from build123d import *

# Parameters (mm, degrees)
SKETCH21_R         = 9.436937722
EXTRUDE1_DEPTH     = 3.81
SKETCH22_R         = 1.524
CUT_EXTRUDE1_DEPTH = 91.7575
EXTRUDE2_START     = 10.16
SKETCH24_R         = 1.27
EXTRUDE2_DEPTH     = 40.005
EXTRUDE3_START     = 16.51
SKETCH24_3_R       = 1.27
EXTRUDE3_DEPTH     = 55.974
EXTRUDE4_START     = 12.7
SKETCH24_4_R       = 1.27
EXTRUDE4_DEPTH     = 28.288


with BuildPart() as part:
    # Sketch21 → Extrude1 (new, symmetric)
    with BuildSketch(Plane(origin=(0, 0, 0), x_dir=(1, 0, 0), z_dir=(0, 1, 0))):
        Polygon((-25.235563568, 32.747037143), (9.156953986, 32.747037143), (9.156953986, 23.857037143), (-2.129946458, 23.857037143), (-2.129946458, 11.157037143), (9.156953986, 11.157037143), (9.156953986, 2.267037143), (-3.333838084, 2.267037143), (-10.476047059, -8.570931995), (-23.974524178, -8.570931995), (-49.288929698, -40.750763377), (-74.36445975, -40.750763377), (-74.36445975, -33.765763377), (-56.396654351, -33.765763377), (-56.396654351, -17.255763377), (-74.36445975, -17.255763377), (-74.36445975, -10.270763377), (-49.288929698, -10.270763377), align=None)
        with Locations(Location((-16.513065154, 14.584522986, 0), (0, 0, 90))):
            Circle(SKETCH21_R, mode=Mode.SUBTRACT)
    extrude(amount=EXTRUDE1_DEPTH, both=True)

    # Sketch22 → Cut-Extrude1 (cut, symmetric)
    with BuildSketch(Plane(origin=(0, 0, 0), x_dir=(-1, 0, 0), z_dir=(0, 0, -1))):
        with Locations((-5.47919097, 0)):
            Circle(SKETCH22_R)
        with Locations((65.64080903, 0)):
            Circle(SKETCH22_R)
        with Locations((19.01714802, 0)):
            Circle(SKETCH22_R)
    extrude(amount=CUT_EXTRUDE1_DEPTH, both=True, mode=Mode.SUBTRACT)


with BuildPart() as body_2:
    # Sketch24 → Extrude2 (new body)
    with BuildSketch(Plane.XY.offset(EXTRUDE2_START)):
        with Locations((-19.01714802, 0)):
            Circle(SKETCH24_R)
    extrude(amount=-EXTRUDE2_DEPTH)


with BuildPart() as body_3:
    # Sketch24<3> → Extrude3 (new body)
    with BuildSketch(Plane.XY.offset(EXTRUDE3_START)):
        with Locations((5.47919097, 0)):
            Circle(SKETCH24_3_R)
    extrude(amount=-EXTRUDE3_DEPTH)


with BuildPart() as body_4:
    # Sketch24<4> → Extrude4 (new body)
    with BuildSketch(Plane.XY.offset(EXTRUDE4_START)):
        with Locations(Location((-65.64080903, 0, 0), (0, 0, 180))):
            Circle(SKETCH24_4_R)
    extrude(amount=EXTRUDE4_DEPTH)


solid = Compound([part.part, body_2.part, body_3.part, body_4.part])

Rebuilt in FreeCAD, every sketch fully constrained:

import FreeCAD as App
import Part
import Sketcher
Q = App.Units.Quantity

doc = App.newDocument("Part")
params = doc.addObject("Spreadsheet::Sheet", "Params")
for row, (alias, value) in enumerate([
    ("sketch1_height", "0.5 in"),
    ("sketch1_height2", "0.65 in"),
    ("sketch1_height3", "0.35 in"),
    ("pad1_length", "0.3 in"),
    ("sketch2_diameter", "0.12 in"),
    ("pocket1_length", "7.225 in"),
    ("sketch3_diameter", "0.1 in"),
    ("pad2_length", "1.575 in"),
    ("sketch4_diameter", "0.1 in"),
    ("pad3_length", "55.974 mm"),
    ("sketch5_diameter", "0.1 in"),
    ("pad4_length", "28.288 mm"),
], start=1):
    params.set(f"A{row}", alias)
    params.set(f"B{row}", "=" + value)
    params.setAlias(f"B{row}", alias)

body = doc.addObject("PartDesign::Body", "Body")

sketch1 = body.newObject("Sketcher::SketchObject", "Sketch")
sketch1.AttachmentSupport = (doc.getObject("XZ_Plane"), [""])
sketch1.MapMode = "FlatFace"
sketch1.addGeometry(Part.LineSegment(App.Vector(9, -33, 0), App.Vector(-25, -33, 0)), False)
sketch1.addGeometry(Part.LineSegment(App.Vector(-25, -33, 0), App.Vector(-49, 10, 0)), False)
sketch1.addGeometry(Part.LineSegment(App.Vector(-49, 10, 0), App.Vector(-74, 10, 0)), False)
sketch1.addGeometry(Part.LineSegment(App.Vector(-74, 10, 0), App.Vector(-74, 17, 0)), False)
sketch1.addGeometry(Part.LineSegment(App.Vector(-74, 17, 0), App.Vector(-56, 17, 0)), False)
sketch1.addGeometry(Part.LineSegment(App.Vector(-56, 17, 0), App.Vector(-56, 34, 0)), False)
sketch1.addGeometry(Part.LineSegment(App.Vector(-56, 34, 0), App.Vector(-74, 34, 0)), False)
sketch1.addGeometry(Part.LineSegment(App.Vector(-74, 34, 0), App.Vector(-74, 41, 0)), False)
sketch1.addGeometry(Part.LineSegment(App.Vector(-74, 41, 0), App.Vector(-49, 41, 0)), False)
sketch1.addGeometry(Part.LineSegment(App.Vector(-49, 41, 0), App.Vector(-24, 9, 0)), False)
sketch1.addGeometry(Part.LineSegment(App.Vector(-24, 9, 0), App.Vector(-10, 9, 0)), False)
sketch1.addGeometry(Part.LineSegment(App.Vector(-10, 9, 0), App.Vector(-3, -2, 0)), False)
sketch1.addGeometry(Part.LineSegment(App.Vector(-3, -2, 0), App.Vector(9, -2, 0)), False)
sketch1.addGeometry(Part.LineSegment(App.Vector(9, -2, 0), App.Vector(9, -11, 0)), False)
sketch1.addGeometry(Part.LineSegment(App.Vector(9, -11, 0), App.Vector(-2, -11, 0)), False)
sketch1.addGeometry(Part.LineSegment(App.Vector(-2, -11, 0), App.Vector(-2, -24, 0)), False)
sketch1.addGeometry(Part.LineSegment(App.Vector(-2, -24, 0), App.Vector(9, -24, 0)), False)
sketch1.addGeometry(Part.LineSegment(App.Vector(9, -24, 0), App.Vector(9, -33, 0)), False)
sketch1.addGeometry(Part.Circle(App.Vector(-17, -15, 0), App.Vector(0, 0, 1), 9), False)
sketch1.addConstraint(Sketcher.Constraint("Coincident", 0, 2, 1, 1))
sketch1.addConstraint(Sketcher.Constraint("Coincident", 1, 2, 2, 1))
sketch1.addConstraint(Sketcher.Constraint("Coincident", 2, 2, 3, 1))
sketch1.addConstraint(Sketcher.Constraint("Coincident", 3, 2, 4, 1))
sketch1.addConstraint(Sketcher.Constraint("Coincident", 4, 2, 5, 1))
sketch1.addConstraint(Sketcher.Constraint("Coincident", 5, 2, 6, 1))
sketch1.addConstraint(Sketcher.Constraint("Coincident", 6, 2, 7, 1))
sketch1.addConstraint(Sketcher.Constraint("Coincident", 7, 2, 8, 1))
sketch1.addConstraint(Sketcher.Constraint("Coincident", 8, 2, 9, 1))
sketch1.addConstraint(Sketcher.Constraint("Coincident", 9, 2, 10, 1))
sketch1.addConstraint(Sketcher.Constraint("Coincident", 10, 2, 11, 1))
sketch1.addConstraint(Sketcher.Constraint("Coincident", 11, 2, 12, 1))
sketch1.addConstraint(Sketcher.Constraint("Coincident", 12, 2, 13, 1))
sketch1.addConstraint(Sketcher.Constraint("Coincident", 13, 2, 14, 1))
sketch1.addConstraint(Sketcher.Constraint("Coincident", 14, 2, 15, 1))
sketch1.addConstraint(Sketcher.Constraint("Coincident", 15, 2, 16, 1))
sketch1.addConstraint(Sketcher.Constraint("Coincident", 16, 2, 17, 1))
sketch1.addConstraint(Sketcher.Constraint("Coincident", 17, 2, 0, 1))
sketch1.addConstraint(Sketcher.Constraint("Horizontal", 0))
sketch1.addConstraint(Sketcher.Constraint("Horizontal", 2))
sketch1.addConstraint(Sketcher.Constraint("Vertical", 3))
sketch1.addConstraint(Sketcher.Constraint("Horizontal", 4))
sketch1.addConstraint(Sketcher.Constraint("Vertical", 5))
sketch1.addConstraint(Sketcher.Constraint("Horizontal", 6))
sketch1.addConstraint(Sketcher.Constraint("Vertical", 7))
sketch1.addConstraint(Sketcher.Constraint("Horizontal", 8))
sketch1.addConstraint(Sketcher.Constraint("Horizontal", 10))
sketch1.addConstraint(Sketcher.Constraint("Horizontal", 12))
sketch1.addConstraint(Sketcher.Constraint("Vertical", 13))
sketch1.addConstraint(Sketcher.Constraint("Horizontal", 14))
sketch1.addConstraint(Sketcher.Constraint("Vertical", 15))
sketch1.addConstraint(Sketcher.Constraint("Horizontal", 16))
sketch1.addConstraint(Sketcher.Constraint("Vertical", 17))
sketch1.addConstraint(Sketcher.Constraint("Vertical", 3, 2, 6, 2))
sketch1.addConstraint(Sketcher.Constraint("Vertical", 1, 2, 8, 2))
sketch1.addConstraint(Sketcher.Constraint("Vertical", 13, 2, 16, 2))
sketch1.addConstraint(Sketcher.Constraint("Equal", 3, 7))
sketch1.addConstraint(Sketcher.Constraint("Equal", 13, 17))
sketch1.addConstraint(Sketcher.Constraint("DistanceY", 15, 2, 15, 1, Q("0.5 in")))
sketch1.addConstraint(Sketcher.Constraint("DistanceY", 5, 1, 5, 2, Q("0.65 in")))
sketch1.addConstraint(Sketcher.Constraint("DistanceY", 13, 2, 13, 1, Q("0.35 in")))
sketch1.addConstraint(Sketcher.Constraint("DistanceY", 2, 2, 7, 2, Q("1.2 in")))
sketch1.addConstraint(Sketcher.Constraint("Diameter", 18, 18.873875))
sketch1.addConstraint(Sketcher.Constraint("DistanceX", 14, 2, 14, 1, 11.2869))
sketch1.addConstraint(Sketcher.Constraint("DistanceX", 2, 2, 2, 1, 25.07553))
sketch1.addConstraint(Sketcher.Constraint("DistanceX", 0, 2, 18, 3, 8.722498))
sketch1.addConstraint(Sketcher.Constraint("DistanceY", 0, 2, 1, 2, 43.017801))
sketch1.addConstraint(Sketcher.Constraint("DistanceX", 10, 2, 12, 2, 19.633001))
sketch1.addConstraint(Sketcher.Constraint("DistanceX", 0, 2, 0, 1, 34.392518))
sketch1.addConstraint(Sketcher.Constraint("DistanceX", 4, 1, 4, 2, 17.967805))
sketch1.addConstraint(Sketcher.Constraint("DistanceX", 10, 1, 10, 2, 13.498477))
sketch1.addConstraint(Sketcher.Constraint("DistanceX", 12, 1, 12, 2, 12.490792))
sketch1.addConstraint(Sketcher.Constraint("DistanceX", 1, 2, -1, 1, 49.28893))
sketch1.addConstraint(Sketcher.Constraint("DistanceY", -1, 1, 9, 2, 8.570932))
sketch1.addConstraint(Sketcher.Constraint("DistanceX", 11, 2, -1, 1, 3.333838))
sketch1.addConstraint(Sketcher.Constraint("DistanceY", 9, 2, 1, 2, 1.699831))
sketch1.addConstraint(Sketcher.Constraint("DistanceY", 18, 3, -1, 1, 14.584523))
sketch1.setExpression("Constraints[38]", "Params.sketch1_height")
sketch1.setExpression("Constraints[39]", "Params.sketch1_height2")
sketch1.setExpression("Constraints[40]", "Params.sketch1_height3")
pad1 = body.newObject("PartDesign::Pad", "Pad")
pad1.Profile = sketch1
pad1.setExpression("Length", "Params.pad1_length")
pad1.Midplane = True

sketch2 = body.newObject("Sketcher::SketchObject", "Sketch001")
sketch2.AttachmentSupport = (doc.getObject("XY_Plane"), [""])
sketch2.MapMode = "FlatFace"
sketch2.addGeometry(Part.Circle(App.Vector(5.5, 0, 0), App.Vector(0, 0, 1), 1.5), False)
sketch2.addGeometry(Part.Circle(App.Vector(-65.6, 0, 0), App.Vector(0, 0, 1), 1.5), False)
sketch2.addGeometry(Part.Circle(App.Vector(-19, 0, 0), App.Vector(0, 0, 1), 1.5), False)
sketch2.addConstraint(Sketcher.Constraint("Equal", 0, 1))
sketch2.addConstraint(Sketcher.Constraint("Equal", 1, 2))
sketch2.addConstraint(Sketcher.Constraint("PointOnObject", 0, 3, -1))
sketch2.addConstraint(Sketcher.Constraint("PointOnObject", 1, 3, -1))
sketch2.addConstraint(Sketcher.Constraint("PointOnObject", 2, 3, -1))
sketch2.addConstraint(Sketcher.Constraint("Diameter", 0, Q("0.12 in")))
sketch2.addConstraint(Sketcher.Constraint("DistanceX", 1, 3, 0, 3, Q("2.8 in")))
sketch2.addConstraint(Sketcher.Constraint("DistanceX", -1, 1, 0, 3, 5.479191))
sketch2.addConstraint(Sketcher.Constraint("DistanceX", 2, 3, -1, 1, 19.017148))
sketch2.setExpression("Constraints[5]", "Params.sketch2_diameter")
pocket1 = body.newObject("PartDesign::Pocket", "Pocket")
pocket1.Profile = sketch2
pocket1.setExpression("Length", "Params.pocket1_length")
pocket1.Midplane = True
body2 = doc.addObject("PartDesign::Body", "Body001")

sketch3 = body2.newObject("Sketcher::SketchObject", "Sketch002")
sketch3.AttachmentSupport = (doc.getObject("XY_Plane001"), [""])
sketch3.MapMode = "FlatFace"
sketch3.AttachmentOffset = App.Placement(App.Vector(0, 0, 0.4 * 25.4), App.Rotation())
sketch3.addGeometry(Part.Circle(App.Vector(-19, 0, 0), App.Vector(0, 0, 1), 1.3), False)
sketch3.addConstraint(Sketcher.Constraint("PointOnObject", 0, 3, -1))
sketch3.addConstraint(Sketcher.Constraint("Diameter", 0, Q("0.1 in")))
sketch3.addConstraint(Sketcher.Constraint("DistanceX", 0, 3, -1, 1, 19.017148))
sketch3.setExpression("Constraints[1]", "Params.sketch3_diameter")
pad2 = body2.newObject("PartDesign::Pad", "Pad001")
pad2.Profile = sketch3
pad2.setExpression("Length", "Params.pad2_length")
pad2.Reversed = True
body3 = doc.addObject("PartDesign::Body", "Body002")

sketch4 = body3.newObject("Sketcher::SketchObject", "Sketch003")
sketch4.AttachmentSupport = (doc.getObject("XY_Plane002"), [""])
sketch4.MapMode = "FlatFace"
sketch4.AttachmentOffset = App.Placement(App.Vector(0, 0, 0.65 * 25.4), App.Rotation())
sketch4.addGeometry(Part.Circle(App.Vector(5.5, 0, 0), App.Vector(0, 0, 1), 1.3), False)
sketch4.addConstraint(Sketcher.Constraint("PointOnObject", 0, 3, -1))
sketch4.addConstraint(Sketcher.Constraint("Diameter", 0, Q("0.1 in")))
sketch4.addConstraint(Sketcher.Constraint("DistanceX", -1, 1, 0, 3, 5.479191))
sketch4.setExpression("Constraints[1]", "Params.sketch4_diameter")
pad3 = body3.newObject("PartDesign::Pad", "Pad002")
pad3.Profile = sketch4
pad3.setExpression("Length", "Params.pad3_length")
pad3.Reversed = True
body4 = doc.addObject("PartDesign::Body", "Body003")

sketch5 = body4.newObject("Sketcher::SketchObject", "Sketch004")
sketch5.AttachmentSupport = (doc.getObject("XY_Plane003"), [""])
sketch5.MapMode = "FlatFace"
sketch5.AttachmentOffset = App.Placement(App.Vector(0, 0, 0.5 * 25.4), App.Rotation())
sketch5.addGeometry(Part.Circle(App.Vector(-65.6, 0, 0), App.Vector(0, 0, 1), 1.3), False)
sketch5.addConstraint(Sketcher.Constraint("PointOnObject", 0, 3, -1))
sketch5.addConstraint(Sketcher.Constraint("Diameter", 0, Q("0.1 in")))
sketch5.addConstraint(Sketcher.Constraint("DistanceX", 0, 3, -1, 1, 65.640809))
sketch5.setExpression("Constraints[1]", "Params.sketch5_diameter")
pad4 = body4.newObject("PartDesign::Pad", "Pad003")
pad4.Profile = sketch5
pad4.setExpression("Length", "Params.pad4_length")

doc.recompute()
